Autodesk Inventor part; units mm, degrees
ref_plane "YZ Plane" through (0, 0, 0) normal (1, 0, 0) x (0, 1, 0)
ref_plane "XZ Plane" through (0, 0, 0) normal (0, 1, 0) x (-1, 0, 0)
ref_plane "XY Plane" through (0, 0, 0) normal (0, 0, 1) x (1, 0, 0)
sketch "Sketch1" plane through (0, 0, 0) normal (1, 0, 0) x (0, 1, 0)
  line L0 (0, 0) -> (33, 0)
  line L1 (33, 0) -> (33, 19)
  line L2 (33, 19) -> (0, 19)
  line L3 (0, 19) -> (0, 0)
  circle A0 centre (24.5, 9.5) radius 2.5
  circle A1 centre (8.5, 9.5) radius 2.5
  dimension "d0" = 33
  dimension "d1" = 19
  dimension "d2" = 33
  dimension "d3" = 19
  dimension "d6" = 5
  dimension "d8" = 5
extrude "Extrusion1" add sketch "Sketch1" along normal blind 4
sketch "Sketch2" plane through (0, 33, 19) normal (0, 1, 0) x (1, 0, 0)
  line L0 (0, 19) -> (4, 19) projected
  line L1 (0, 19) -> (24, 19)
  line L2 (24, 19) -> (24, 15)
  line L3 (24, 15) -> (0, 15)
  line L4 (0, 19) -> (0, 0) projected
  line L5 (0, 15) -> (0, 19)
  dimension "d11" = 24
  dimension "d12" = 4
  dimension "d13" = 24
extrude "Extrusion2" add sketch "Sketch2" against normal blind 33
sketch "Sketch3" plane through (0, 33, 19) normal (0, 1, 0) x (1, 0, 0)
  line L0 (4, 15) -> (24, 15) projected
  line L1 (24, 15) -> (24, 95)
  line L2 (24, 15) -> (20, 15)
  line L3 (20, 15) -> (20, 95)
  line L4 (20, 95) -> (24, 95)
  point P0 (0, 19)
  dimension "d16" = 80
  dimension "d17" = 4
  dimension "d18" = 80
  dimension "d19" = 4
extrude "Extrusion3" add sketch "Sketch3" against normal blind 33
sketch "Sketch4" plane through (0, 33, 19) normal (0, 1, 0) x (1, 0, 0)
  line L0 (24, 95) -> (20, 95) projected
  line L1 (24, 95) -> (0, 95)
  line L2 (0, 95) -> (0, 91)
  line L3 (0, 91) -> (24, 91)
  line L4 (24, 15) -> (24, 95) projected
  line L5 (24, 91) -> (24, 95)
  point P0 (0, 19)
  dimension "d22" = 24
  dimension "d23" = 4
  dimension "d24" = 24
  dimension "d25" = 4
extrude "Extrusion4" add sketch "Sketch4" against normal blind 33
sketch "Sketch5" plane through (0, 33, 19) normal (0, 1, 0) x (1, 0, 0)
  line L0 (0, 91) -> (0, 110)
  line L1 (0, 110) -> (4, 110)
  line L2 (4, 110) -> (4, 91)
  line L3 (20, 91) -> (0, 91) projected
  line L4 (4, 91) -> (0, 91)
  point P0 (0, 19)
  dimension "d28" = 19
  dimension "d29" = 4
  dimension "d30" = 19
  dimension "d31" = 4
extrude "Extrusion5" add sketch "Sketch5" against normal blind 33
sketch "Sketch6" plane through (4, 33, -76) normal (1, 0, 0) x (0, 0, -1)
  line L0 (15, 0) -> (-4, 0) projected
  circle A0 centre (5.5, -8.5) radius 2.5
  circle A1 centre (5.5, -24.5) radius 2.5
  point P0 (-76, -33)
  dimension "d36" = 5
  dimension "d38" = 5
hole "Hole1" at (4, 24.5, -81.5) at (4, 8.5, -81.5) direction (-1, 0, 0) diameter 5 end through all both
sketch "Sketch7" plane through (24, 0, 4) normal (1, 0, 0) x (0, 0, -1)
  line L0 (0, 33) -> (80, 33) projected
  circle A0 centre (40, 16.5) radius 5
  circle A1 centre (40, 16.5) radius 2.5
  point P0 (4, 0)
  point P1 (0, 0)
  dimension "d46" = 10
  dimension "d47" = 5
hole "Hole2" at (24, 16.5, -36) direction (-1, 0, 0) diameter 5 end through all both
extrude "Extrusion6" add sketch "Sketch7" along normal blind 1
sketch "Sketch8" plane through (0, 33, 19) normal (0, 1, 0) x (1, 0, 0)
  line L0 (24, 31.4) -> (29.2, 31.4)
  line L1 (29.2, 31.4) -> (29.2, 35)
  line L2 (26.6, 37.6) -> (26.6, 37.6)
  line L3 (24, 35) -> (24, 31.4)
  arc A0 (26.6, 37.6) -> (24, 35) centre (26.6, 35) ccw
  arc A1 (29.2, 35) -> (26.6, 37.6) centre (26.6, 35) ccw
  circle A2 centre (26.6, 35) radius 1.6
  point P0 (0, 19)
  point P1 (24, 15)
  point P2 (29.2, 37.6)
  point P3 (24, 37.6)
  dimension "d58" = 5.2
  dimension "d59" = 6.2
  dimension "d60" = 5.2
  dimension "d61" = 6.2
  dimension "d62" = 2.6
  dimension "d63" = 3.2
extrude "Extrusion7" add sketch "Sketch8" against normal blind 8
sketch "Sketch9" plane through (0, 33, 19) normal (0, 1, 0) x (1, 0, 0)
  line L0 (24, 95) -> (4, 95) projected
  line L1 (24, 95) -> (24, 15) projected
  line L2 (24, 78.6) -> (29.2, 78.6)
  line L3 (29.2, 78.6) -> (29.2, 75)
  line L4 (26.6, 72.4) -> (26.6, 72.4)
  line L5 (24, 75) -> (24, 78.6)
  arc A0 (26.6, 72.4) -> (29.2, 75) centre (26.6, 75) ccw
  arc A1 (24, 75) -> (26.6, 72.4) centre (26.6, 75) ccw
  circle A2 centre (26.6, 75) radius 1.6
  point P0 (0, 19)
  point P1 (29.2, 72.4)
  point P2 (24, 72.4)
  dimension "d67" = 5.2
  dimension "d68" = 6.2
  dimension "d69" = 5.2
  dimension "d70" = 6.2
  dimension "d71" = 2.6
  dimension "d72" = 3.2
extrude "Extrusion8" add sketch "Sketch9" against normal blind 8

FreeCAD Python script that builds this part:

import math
import FreeCAD as App
import Part
import Sketcher


def add_polygon(sketch, points):
    """Adds a closed chain of lines whose ends are joined by coincident constraints."""
    first, n = sketch.GeometryCount, len(points)
    for a, b in zip(points, points[1:] + points[:1]):
        sketch.addGeometry(Part.LineSegment(App.Vector(*a, 0), App.Vector(*b, 0)), False)
    for i in range(n):
        sketch.addConstraint(Sketcher.Constraint("Coincident", first + i, 2, first + (i + 1) % n, 1))

doc = App.newDocument("Part")
body = doc.addObject("PartDesign::Body", "Body")

sketch1 = body.newObject("Sketcher::SketchObject", "Sketch")
sketch1.AttachmentSupport = (doc.getObject("YZ_Plane"), [""])
sketch1.MapMode = "FlatFace"
add_polygon(sketch1, [(0, 19), (0, 0), (33, 0), (33, 19)])
sketch1.addGeometry(Part.Circle(App.Vector(8.5, 9.5, 0), App.Vector(0, 0, 1), 2.5), False)
sketch1.addGeometry(Part.Circle(App.Vector(24.5, 9.5, 0), App.Vector(0, 0, 1), 2.5), False)
sketch1.addConstraint([
    Sketcher.Constraint("Vertical", 0),
    Sketcher.Constraint("Horizontal", 1),
    Sketcher.Constraint("Vertical", 2),
    Sketcher.Constraint("Horizontal", 3),
    Sketcher.Constraint("Coincident", 0, 2, -1, 1),
    Sketcher.Constraint("Equal", 4, 5),
    Sketcher.Constraint("Horizontal", 4, 3, 5, 3),
    Sketcher.Constraint("Diameter", 4, 5.0),
    Sketcher.Constraint("DistanceX", 1, 1, 1, 2, 33.0),
    Sketcher.Constraint("DistanceY", 0, 2, 0, 1, 19.0),
    Sketcher.Constraint("DistanceX", 4, 3, 5, 3, 16.0),
    Sketcher.Constraint("DistanceX", -1, 1, 4, 3, 8.5),
    Sketcher.Constraint("DistanceY", -1, 1, 4, 3, 9.5),
])
pad1 = body.newObject("PartDesign::Pad", "Pad")
pad1.Profile = sketch1
pad1.Length = 4

sketch2 = body.newObject("Sketcher::SketchObject", "Sketch001")
sketch2.AttachmentSupport = (doc.getObject("XZ_Plane"), [""])
sketch2.MapMode = "FlatFace"
sketch2.AttachmentOffset = App.Placement(App.Vector(0, 0, -33), App.Rotation())
add_polygon(sketch2, [(24, 0), (0, 0), (0, 4), (24, 4)])
sketch2.addConstraint([
    Sketcher.Constraint("Horizontal", 0),
    Sketcher.Constraint("Vertical", 1),
    Sketcher.Constraint("Horizontal", 2),
    Sketcher.Constraint("Vertical", 3),
    Sketcher.Constraint("Coincident", 0, 2, -1, 1),
    Sketcher.Constraint("DistanceX", 0, 2, 0, 1, 24.0),
    Sketcher.Constraint("DistanceY", 1, 1, 1, 2, 4.0),
])
pad2 = body.newObject("PartDesign::Pad", "Pad001")
pad2.Profile = sketch2
pad2.Length = 33

sketch3 = body.newObject("Sketcher::SketchObject", "Sketch002")
sketch3.AttachmentSupport = (doc.getObject("XZ_Plane"), [""])
sketch3.MapMode = "FlatFace"
sketch3.AttachmentOffset = App.Placement(App.Vector(0, 0, -33), App.Rotation())
add_polygon(sketch3, [(20, -76), (20, 4), (24, 4), (24, -76)])
sketch3.addConstraint([
    Sketcher.Constraint("Vertical", 0),
    Sketcher.Constraint("Horizontal", 1),
    Sketcher.Constraint("Vertical", 2),
    Sketcher.Constraint("Horizontal", 3),
    Sketcher.Constraint("DistanceX", 1, 1, 1, 2, 4.0),
    Sketcher.Constraint("DistanceY", 0, 1, 0, 2, 80.0),
    Sketcher.Constraint("DistanceY", -1, 1, 0, 2, 4.0),
    Sketcher.Constraint("DistanceX", -1, 1, 0, 2, 20.0),
])
pad3 = body.newObject("PartDesign::Pad", "Pad002")
pad3.Profile = sketch3
pad3.Length = 33

sketch4 = body.newObject("Sketcher::SketchObject", "Sketch003")
sketch4.AttachmentSupport = (doc.getObject("XZ_Plane"), [""])
sketch4.MapMode = "FlatFace"
sketch4.AttachmentOffset = App.Placement(App.Vector(0, 0, -33), App.Rotation())
add_polygon(sketch4, [(24, -72), (24, -76), (0, -76), (0, -72)])
sketch4.addConstraint([
    Sketcher.Constraint("Vertical", 0),
    Sketcher.Constraint("Horizontal", 1),
    Sketcher.Constraint("Vertical", 2),
    Sketcher.Constraint("Horizontal", 3),
    Sketcher.Constraint("PointOnObject", 1, 2, -2),
    Sketcher.Constraint("DistanceX", 1, 2, 1, 1, 24.0),
    Sketcher.Constraint("DistanceY", 0, 2, 0, 1, 4.0),
    Sketcher.Constraint("DistanceY", 0, 2, -1, 1, 76.0),
])
pad4 = body.newObject("PartDesign::Pad", "Pad003")
pad4.Profile = sketch4
pad4.Length = 33

sketch5 = body.newObject("Sketcher::SketchObject", "Sketch004")
sketch5.AttachmentSupport = (doc.getObject("XZ_Plane"), [""])
sketch5.MapMode = "FlatFace"
sketch5.AttachmentOffset = App.Placement(App.Vector(0, 0, -33), App.Rotation())
add_polygon(sketch5, [(0, -91), (0, -72), (4, -72), (4, -91)])
sketch5.addConstraint([
    Sketcher.Constraint("Vertical", 0),
    Sketcher.Constraint("Horizontal", 1),
    Sketcher.Constraint("Vertical", 2),
    Sketcher.Constraint("Horizontal", 3),
    Sketcher.Constraint("PointOnObject", 0, 2, -2),
    Sketcher.Constraint("DistanceX", 1, 1, 1, 2, 4.0),
    Sketcher.Constraint("DistanceY", 0, 1, 0, 2, 19.0),
    Sketcher.Constraint("DistanceY", 0, 2, -1, 1, 72.0),
])
pad5 = body.newObject("PartDesign::Pad", "Pad004")
pad5.Profile = sketch5
pad5.Length = 33

sketch6 = body.newObject("Sketcher::SketchObject", "Sketch005")
sketch6.AttachmentSupport = (doc.getObject("YZ_Plane"), [""])
sketch6.MapMode = "FlatFace"
sketch6.AttachmentOffset = App.Placement(App.Vector(0, 0, 4), App.Rotation())
sketch6.addGeometry([
    Part.Circle(App.Vector(24.5, -81.5, 0), App.Vector(0, 0, 1), 2.5),
    Part.Circle(App.Vector(8.5, -81.5, 0), App.Vector(0, 0, 1), 2.5),
], False)
sketch6.addConstraint([
    Sketcher.Constraint("Equal", 0, 1),
    Sketcher.Constraint("Horizontal", 0, 3, 1, 3),
    Sketcher.Constraint("Diameter", 0, 5.0),
    Sketcher.Constraint("DistanceX", 1, 3, 0, 3, 16.0),
    Sketcher.Constraint("DistanceX", -1, 1, 0, 3, 24.5),
    Sketcher.Constraint("DistanceY", 0, 3, -1, 1, 81.5),
])
doc.recompute()
hole = body.newObject("PartDesign::Hole", "Hole")
hole.Profile = sketch6
hole.ThreadType = "None"
hole.Diameter = 5
hole.DepthType = "ThroughAll"

sketch7 = body.newObject("Sketcher::SketchObject", "Sketch006")
sketch7.AttachmentSupport = (doc.getObject("YZ_Plane"), [""])
sketch7.MapMode = "FlatFace"
sketch7.AttachmentOffset = App.Placement(App.Vector(0, 0, 24), App.Rotation())
sketch7.addGeometry(Part.Circle(App.Vector(16.5, -36, 0), App.Vector(0, 0, 1), 2.5), False)
sketch7.addConstraint([
    Sketcher.Constraint("Diameter", 0, 5.0),
    Sketcher.Constraint("DistanceY", 0, 3, -1, 1, 36.0),
    Sketcher.Constraint("DistanceX", -1, 1, 0, 3, 16.5),
])
doc.recompute()
hole2 = body.newObject("PartDesign::Hole", "Hole001")
hole2.Profile = sketch7
hole2.ThreadType = "None"
hole2.Diameter = 5
hole2.DepthType = "ThroughAll"

sketch8 = body.newObject("Sketcher::SketchObject", "Sketch007")
sketch8.AttachmentSupport = (doc.getObject("YZ_Plane"), [""])
sketch8.MapMode = "FlatFace"
sketch8.AttachmentOffset = App.Placement(App.Vector(0, 0, 24), App.Rotation())
sketch8.addGeometry([
    Part.Circle(App.Vector(16.5, -36, 0), App.Vector(0, 0, 1), 5),
    Part.Circle(App.Vector(16.5, -36, 0), App.Vector(0, 0, 1), 2.5),
], False)
sketch8.addConstraint([
    Sketcher.Constraint("Coincident", 1, 3, 0, 3),
    Sketcher.Constraint("Diameter", 0, 10.0),
    Sketcher.Constraint("Diameter", 1, 5.0),
    Sketcher.Constraint("DistanceY", 0, 3, -1, 1, 36.0),
    Sketcher.Constraint("DistanceX", -1, 1, 0, 3, 16.5),
])
pad6 = body.newObject("PartDesign::Pad", "Pad005")
pad6.Profile = sketch8
pad6.Length = 1

sketch9 = body.newObject("Sketcher::SketchObject", "Sketch008")
sketch9.AttachmentSupport = (doc.getObject("XZ_Plane"), [""])
sketch9.MapMode = "FlatFace"
sketch9.AttachmentOffset = App.Placement(App.Vector(0, 0, -33), App.Rotation())
sketch9.addGeometry([
    Part.LineSegment(App.Vector(24, -16, 0), App.Vector(24, -12.4, 0)),
    Part.LineSegment(App.Vector(24, -12.4, 0), App.Vector(29.2, -12.4, 0)),
    Part.LineSegment(App.Vector(29.2, -12.4, 0), App.Vector(29.2, -16, 0)),
    Part.ArcOfCircle(Part.Circle(App.Vector(26.6, -16, 0), App.Vector(0, 0, 1), 2.6), math.radians(180), math.radians(360)),
    Part.Circle(App.Vector(26.6, -16, 0), App.Vector(0, 0, 1), 1.6),
], False)
sketch9.addConstraint([
    Sketcher.Constraint("Coincident", 0, 2, 1, 1),
    Sketcher.Constraint("Coincident", 1, 2, 2, 1),
    Sketcher.Constraint("Tangent", 2, 2, 3, 2),
    Sketcher.Constraint("Tangent", 3, 1, 0, 1),
    Sketcher.Constraint("Vertical", 0),
    Sketcher.Constraint("Horizontal", 1),
    Sketcher.Constraint("Vertical", 2),
    Sketcher.Constraint("Coincident", 4, 3, 3, 3),
    Sketcher.Constraint("Diameter", 4, 3.2),
    Sketcher.Constraint("Radius", 3, 2.6),
    Sketcher.Constraint("DistanceY", 0, 1, 0, 2, 3.6),
    Sketcher.Constraint("DistanceY", 3, 3, -1, 1, 16.0),
    Sketcher.Constraint("DistanceX", -1, 1, 0, 2, 24.0),
])
pad7 = body.newObject("PartDesign::Pad", "Pad006")
pad7.Profile = sketch9
pad7.Length = 8

sketch10 = body.newObject("Sketcher::SketchObject", "Sketch009")
sketch10.AttachmentSupport = (doc.getObject("XZ_Plane"), [""])
sketch10.MapMode = "FlatFace"
sketch10.AttachmentOffset = App.Placement(App.Vector(0, 0, -33), App.Rotation())
sketch10.addGeometry([
    Part.LineSegment(App.Vector(29.2, -59.6, 0), App.Vector(24, -59.6, 0)),
    Part.LineSegment(App.Vector(24, -59.6, 0), App.Vector(24, -56, 0)),
    Part.ArcOfCircle(Part.Circle(App.Vector(26.6, -56, 0), App.Vector(0, 0, 1), 2.6), math.radians(0), math.radians(180)),
    Part.LineSegment(App.Vector(29.2, -56, 0), App.Vector(29.2, -59.6, 0)),
    Part.Circle(App.Vector(26.6, -56, 0), App.Vector(0, 0, 1), 1.6),
], False)
sketch10.addConstraint([
    Sketcher.Constraint("Coincident", 0, 2, 1, 1),
    Sketcher.Constraint("Tangent", 1, 2, 2, 2),
    Sketcher.Constraint("Tangent", 2, 1, 3, 1),
    Sketcher.Constraint("Coincident", 3, 2, 0, 1),
    Sketcher.Constraint("Horizontal", 0),
    Sketcher.Constraint("Vertical", 1),
    Sketcher.Constraint("Vertical", 3),
    Sketcher.Constraint("Coincident", 4, 3, 2, 3),
    Sketcher.Constraint("Diameter", 4, 3.2),
    Sketcher.Constraint("Radius", 2, 2.6),
    Sketcher.Constraint("DistanceY", 1, 1, 1, 2, 3.6),
    Sketcher.Constraint("DistanceY", 2, 3, -1, 1, 56.0),
    Sketcher.Constraint("DistanceX", -1, 1, 0, 2, 24.0),
])
pad8 = body.newObject("PartDesign::Pad", "Pad007")
pad8.Profile = sketch10
pad8.Length = 8

doc.recompute()
